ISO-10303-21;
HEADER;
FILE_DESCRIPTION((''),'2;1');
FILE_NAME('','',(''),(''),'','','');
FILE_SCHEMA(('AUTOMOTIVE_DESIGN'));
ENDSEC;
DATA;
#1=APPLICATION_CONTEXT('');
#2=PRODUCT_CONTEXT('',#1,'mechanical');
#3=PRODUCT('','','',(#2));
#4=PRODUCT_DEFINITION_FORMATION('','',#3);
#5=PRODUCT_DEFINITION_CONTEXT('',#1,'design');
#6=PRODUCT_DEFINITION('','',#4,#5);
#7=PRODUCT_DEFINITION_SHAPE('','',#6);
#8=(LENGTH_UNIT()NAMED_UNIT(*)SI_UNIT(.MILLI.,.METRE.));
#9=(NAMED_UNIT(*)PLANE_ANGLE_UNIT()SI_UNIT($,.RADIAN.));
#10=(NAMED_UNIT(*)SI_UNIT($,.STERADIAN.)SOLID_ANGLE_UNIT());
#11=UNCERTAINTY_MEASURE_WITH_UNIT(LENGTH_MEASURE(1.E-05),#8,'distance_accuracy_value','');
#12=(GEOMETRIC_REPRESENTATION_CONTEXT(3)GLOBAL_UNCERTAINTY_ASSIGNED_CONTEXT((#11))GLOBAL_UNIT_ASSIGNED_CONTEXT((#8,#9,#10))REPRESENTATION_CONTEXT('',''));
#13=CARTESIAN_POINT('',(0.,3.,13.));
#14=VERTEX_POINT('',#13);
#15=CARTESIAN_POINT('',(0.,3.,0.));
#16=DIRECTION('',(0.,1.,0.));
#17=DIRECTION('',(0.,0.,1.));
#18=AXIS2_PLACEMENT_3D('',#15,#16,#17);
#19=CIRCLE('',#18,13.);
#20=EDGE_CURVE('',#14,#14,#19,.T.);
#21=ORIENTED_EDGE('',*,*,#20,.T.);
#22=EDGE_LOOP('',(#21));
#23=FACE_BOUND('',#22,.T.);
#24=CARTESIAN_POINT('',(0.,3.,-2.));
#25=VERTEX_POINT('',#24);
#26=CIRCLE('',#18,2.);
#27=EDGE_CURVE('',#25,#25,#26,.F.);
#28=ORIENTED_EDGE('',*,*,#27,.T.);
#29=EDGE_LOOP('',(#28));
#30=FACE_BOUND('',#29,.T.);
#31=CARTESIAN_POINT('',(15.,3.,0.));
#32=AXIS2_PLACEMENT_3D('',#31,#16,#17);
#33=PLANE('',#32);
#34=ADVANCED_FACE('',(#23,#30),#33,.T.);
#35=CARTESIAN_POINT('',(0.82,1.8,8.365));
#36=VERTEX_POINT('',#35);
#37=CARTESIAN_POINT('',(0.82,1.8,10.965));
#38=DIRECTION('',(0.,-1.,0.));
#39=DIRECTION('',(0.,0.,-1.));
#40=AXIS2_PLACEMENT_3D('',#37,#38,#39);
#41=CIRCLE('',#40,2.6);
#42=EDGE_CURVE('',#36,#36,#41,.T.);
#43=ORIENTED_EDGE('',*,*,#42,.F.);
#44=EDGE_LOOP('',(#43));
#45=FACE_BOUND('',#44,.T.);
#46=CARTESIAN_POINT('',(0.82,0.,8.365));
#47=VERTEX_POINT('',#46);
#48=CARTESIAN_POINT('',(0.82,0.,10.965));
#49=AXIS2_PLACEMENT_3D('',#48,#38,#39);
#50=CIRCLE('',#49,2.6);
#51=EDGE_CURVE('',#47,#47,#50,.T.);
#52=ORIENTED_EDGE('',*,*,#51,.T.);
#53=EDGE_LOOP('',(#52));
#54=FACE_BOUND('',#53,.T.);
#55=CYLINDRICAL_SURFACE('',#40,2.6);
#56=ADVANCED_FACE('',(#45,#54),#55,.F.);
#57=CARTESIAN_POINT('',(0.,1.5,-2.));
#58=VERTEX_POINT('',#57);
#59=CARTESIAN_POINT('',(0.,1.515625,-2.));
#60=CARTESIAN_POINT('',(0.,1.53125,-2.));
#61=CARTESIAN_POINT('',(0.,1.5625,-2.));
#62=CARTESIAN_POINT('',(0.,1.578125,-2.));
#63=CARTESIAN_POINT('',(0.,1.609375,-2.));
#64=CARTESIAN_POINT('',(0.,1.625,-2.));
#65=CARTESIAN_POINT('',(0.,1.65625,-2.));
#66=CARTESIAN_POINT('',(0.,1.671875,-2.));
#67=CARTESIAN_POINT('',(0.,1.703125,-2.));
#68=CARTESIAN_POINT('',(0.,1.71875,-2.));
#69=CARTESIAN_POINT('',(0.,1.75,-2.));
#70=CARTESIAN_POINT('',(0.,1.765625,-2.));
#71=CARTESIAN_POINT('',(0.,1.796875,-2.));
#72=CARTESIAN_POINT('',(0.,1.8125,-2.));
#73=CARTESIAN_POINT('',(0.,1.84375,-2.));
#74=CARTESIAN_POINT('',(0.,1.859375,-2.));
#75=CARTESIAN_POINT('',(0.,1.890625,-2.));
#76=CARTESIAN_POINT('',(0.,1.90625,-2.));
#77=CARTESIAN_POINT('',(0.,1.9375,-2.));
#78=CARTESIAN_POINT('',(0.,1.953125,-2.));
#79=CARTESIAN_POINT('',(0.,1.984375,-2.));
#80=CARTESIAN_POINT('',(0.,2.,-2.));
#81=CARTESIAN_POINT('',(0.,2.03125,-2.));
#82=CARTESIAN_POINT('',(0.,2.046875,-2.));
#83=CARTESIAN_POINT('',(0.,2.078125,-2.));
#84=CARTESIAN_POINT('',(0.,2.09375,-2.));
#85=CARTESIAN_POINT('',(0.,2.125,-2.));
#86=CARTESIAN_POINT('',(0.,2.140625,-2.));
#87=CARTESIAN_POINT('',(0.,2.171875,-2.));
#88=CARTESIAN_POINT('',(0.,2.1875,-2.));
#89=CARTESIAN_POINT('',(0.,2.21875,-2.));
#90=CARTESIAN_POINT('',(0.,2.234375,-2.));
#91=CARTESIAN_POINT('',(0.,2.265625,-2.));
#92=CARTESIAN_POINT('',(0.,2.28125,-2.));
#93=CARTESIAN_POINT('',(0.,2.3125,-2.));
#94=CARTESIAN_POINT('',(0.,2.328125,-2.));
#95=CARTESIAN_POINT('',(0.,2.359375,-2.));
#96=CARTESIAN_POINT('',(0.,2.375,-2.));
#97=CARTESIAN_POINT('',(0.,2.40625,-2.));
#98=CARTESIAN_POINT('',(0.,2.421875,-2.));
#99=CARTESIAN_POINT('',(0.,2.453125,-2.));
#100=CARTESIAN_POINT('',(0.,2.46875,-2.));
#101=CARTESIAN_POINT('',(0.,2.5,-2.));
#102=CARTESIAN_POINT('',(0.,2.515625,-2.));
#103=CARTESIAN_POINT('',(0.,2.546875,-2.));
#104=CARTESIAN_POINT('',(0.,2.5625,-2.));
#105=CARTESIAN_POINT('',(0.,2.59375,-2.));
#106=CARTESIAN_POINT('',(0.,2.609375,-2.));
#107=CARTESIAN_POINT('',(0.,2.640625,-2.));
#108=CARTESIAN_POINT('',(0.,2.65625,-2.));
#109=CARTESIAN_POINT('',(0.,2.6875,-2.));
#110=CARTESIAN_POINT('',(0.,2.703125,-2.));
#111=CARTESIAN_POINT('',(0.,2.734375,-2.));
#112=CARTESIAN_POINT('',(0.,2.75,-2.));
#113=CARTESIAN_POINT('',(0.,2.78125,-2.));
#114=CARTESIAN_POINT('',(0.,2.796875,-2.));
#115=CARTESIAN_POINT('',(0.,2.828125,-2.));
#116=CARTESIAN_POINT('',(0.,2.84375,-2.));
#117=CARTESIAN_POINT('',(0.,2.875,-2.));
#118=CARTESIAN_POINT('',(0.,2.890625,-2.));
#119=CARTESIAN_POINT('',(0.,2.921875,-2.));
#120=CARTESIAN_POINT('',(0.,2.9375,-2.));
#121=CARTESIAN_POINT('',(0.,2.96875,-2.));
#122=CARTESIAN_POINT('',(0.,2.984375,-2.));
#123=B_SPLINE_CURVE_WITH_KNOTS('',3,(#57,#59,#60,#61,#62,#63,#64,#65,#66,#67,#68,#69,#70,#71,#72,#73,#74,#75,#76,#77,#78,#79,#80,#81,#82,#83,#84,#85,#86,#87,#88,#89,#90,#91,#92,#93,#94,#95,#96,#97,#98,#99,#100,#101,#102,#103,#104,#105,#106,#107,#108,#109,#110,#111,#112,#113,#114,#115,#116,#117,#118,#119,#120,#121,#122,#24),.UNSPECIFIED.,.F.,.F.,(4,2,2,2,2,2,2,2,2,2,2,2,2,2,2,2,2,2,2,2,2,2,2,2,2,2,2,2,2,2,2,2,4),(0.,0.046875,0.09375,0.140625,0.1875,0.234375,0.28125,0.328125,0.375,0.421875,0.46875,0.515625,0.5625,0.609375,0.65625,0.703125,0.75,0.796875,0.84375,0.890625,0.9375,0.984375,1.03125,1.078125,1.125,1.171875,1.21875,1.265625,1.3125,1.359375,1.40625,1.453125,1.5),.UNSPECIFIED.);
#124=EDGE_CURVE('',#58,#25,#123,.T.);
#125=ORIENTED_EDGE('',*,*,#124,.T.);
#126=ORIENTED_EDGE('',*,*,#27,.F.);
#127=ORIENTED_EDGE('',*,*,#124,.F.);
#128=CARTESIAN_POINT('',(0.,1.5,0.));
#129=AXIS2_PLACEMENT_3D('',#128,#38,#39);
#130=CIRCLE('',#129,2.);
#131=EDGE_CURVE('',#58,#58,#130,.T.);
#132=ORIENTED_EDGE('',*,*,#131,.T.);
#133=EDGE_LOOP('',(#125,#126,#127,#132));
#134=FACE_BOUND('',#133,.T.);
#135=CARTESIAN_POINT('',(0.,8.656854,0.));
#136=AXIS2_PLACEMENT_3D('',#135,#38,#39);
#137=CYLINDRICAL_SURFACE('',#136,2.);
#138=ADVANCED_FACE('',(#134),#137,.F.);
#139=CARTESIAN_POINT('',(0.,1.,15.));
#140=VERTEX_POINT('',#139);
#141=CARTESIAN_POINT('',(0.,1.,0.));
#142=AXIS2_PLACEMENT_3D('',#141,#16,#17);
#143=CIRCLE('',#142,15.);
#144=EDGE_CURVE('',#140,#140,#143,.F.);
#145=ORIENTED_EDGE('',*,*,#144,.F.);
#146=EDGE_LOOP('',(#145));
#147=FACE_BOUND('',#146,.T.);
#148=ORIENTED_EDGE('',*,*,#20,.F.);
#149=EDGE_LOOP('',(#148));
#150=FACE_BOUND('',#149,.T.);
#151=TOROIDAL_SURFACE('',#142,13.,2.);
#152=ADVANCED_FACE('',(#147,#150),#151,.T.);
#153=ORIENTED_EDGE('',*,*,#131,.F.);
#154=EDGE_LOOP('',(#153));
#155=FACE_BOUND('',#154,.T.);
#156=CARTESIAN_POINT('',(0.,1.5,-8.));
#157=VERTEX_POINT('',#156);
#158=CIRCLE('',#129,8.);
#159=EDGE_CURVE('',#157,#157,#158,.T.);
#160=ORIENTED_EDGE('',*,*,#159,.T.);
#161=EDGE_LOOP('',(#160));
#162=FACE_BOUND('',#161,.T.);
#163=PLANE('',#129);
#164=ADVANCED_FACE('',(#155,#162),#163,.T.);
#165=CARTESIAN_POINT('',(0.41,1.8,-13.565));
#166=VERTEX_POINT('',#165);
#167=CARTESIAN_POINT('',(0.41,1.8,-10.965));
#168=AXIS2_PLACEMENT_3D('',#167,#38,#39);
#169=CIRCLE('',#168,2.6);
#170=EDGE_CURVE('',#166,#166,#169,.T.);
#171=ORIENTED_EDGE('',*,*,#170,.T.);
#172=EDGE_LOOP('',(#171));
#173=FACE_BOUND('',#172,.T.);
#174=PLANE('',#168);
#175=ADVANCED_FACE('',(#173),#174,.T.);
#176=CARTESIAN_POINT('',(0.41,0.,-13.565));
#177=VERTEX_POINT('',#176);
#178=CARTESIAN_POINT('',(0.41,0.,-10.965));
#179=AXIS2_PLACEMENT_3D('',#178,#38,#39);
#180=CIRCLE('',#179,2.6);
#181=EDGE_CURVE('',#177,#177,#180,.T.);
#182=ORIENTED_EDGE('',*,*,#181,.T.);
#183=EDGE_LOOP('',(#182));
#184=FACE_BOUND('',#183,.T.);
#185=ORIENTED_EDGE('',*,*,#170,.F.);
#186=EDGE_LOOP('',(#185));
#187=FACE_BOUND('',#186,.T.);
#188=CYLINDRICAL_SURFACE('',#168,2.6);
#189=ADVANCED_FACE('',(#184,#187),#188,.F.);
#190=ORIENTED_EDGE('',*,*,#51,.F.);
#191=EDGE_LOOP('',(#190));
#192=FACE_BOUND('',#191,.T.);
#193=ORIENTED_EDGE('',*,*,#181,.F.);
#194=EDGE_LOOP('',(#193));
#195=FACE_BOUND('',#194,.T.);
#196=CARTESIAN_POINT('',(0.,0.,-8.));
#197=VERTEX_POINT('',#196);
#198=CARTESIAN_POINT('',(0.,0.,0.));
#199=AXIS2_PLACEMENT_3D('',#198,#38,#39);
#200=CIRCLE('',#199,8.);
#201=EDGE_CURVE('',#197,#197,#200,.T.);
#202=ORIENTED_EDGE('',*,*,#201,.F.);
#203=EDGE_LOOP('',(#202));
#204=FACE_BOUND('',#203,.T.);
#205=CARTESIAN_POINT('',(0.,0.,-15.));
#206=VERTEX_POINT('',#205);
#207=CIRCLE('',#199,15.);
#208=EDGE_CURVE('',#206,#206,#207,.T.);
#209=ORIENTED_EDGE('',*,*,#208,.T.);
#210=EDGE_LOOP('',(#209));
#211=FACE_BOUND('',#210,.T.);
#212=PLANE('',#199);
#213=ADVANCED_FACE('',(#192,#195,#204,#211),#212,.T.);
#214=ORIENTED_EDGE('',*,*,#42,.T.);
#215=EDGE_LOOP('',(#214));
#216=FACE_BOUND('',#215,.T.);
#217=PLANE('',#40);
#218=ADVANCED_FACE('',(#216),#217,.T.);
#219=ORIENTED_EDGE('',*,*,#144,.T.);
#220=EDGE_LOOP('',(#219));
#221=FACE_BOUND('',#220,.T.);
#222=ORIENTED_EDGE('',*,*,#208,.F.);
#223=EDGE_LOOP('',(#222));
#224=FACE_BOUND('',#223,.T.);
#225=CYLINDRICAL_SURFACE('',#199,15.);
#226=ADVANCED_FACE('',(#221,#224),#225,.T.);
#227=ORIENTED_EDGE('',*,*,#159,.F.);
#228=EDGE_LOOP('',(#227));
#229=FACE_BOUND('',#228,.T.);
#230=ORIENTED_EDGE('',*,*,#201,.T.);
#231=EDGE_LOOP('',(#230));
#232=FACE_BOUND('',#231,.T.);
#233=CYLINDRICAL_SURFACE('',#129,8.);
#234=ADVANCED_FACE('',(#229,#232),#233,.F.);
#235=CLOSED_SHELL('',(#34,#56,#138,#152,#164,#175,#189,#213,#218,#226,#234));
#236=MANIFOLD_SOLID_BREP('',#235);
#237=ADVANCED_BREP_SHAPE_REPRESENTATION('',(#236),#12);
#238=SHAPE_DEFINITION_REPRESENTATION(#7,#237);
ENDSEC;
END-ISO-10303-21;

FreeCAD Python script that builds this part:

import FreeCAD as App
import Part
import Sketcher
Q = App.Units.Quantity


def edges_at(feature, points):
    """Names of the edges that pass closest to the given points."""
    edges = feature.Shape.Edges
    near = lambda p: min(range(len(edges)), key=lambda i: edges[i].distToShape(Part.Vertex(*p))[0])
    return sorted({f"Edge{near(p) + 1}" for p in points})

doc = App.newDocument("Part")
body = doc.addObject("PartDesign::Body", "Body")

# Sketch on XY plane
sketch1 = doc.addObject("Sketcher::SketchObject", "Sketch")
body.addObject(sketch1)
sketch1.AttachmentSupport = (doc.XY_Plane, [""])
sketch1.MapMode = "FlatFace"
sketch1.addGeometry([
    Part.LineSegment(App.Vector(0, 3, 0), App.Vector(0, 0, 0)),
    Part.LineSegment(App.Vector(0, 0, 0), App.Vector(15, 0, 0)),
    Part.LineSegment(App.Vector(15, 0, 0), App.Vector(15, 3, 0)),
    Part.LineSegment(App.Vector(15, 3, 0), App.Vector(0, 3, 0)),
], False)
sketch1.addConstraint([
    Sketcher.Constraint("Coincident", 0, 2, 1, 1),
    Sketcher.Constraint("Coincident", 1, 2, 2, 1),
    Sketcher.Constraint("Coincident", 2, 2, 3, 1),
    Sketcher.Constraint("Coincident", 3, 2, 0, 1),
    Sketcher.Constraint("Vertical", 0),
    Sketcher.Constraint("Horizontal", 1),
    Sketcher.Constraint("Vertical", 2),
    Sketcher.Constraint("Horizontal", 3),
    Sketcher.Constraint("Coincident", 0, 2, -1, 1),
    Sketcher.Constraint("DistanceX", 1, 1, 1, 2, Q("15 mm")),
    Sketcher.Constraint("DistanceY", 0, 2, 0, 1, Q("3 mm")),
])
revolution = doc.addObject("PartDesign::Revolution", "Revolution")
body.addObject(revolution)
revolution.Profile = sketch1
revolution.ReferenceAxis = (sketch1, ["V_Axis"])
revolution.Angle = 360

# Sketch on XZ plane
sketch2 = doc.addObject("Sketcher::SketchObject", "Sketch001")
body.addObject(sketch2)
sketch2.AttachmentSupport = (doc.XZ_Plane, [""])
sketch2.MapMode = "FlatFace"
sketch2.addGeometry(Part.Circle(App.Vector(0, 0, 0), App.Vector(0, 0, 1), 8), False)
sketch2.addConstraint([
    Sketcher.Constraint("Coincident", 0, 3, -1, 1),
    Sketcher.Constraint("Diameter", 0, Q("16 mm")),
])
pocket1 = doc.addObject("PartDesign::Pocket", "Pocket")
body.addObject(pocket1)
pocket1.Profile = sketch2
pocket1.Length = 1.5

# Sketch on XZ plane
sketch3 = doc.addObject("Sketcher::SketchObject", "Sketch002")
body.addObject(sketch3)
sketch3.AttachmentSupport = (doc.XZ_Plane, [""])
sketch3.MapMode = "FlatFace"
sketch3.AttachmentOffset = App.Placement(App.Vector(0, 0, -1.5), App.Rotation())
sketch3.addGeometry(Part.Circle(App.Vector(0, 0, 0), App.Vector(0, 0, 1), 2), False)
sketch3.addConstraint([
    Sketcher.Constraint("Coincident", 0, 3, -1, 1),
    Sketcher.Constraint("Diameter", 0, Q("4 mm")),
])
pocket2 = doc.addObject("PartDesign::Pocket", "Pocket001")
body.addObject(pocket2)
pocket2.Profile = sketch3
pocket2.Length = 1.5

# Sketch on XZ plane
sketch4 = doc.addObject("Sketcher::SketchObject", "Sketch003")
body.addObject(sketch4)
sketch4.AttachmentSupport = (doc.XZ_Plane, [""])
sketch4.MapMode = "FlatFace"
sketch4.addGeometry([
    Part.Circle(App.Vector(0.4, -11, 0), App.Vector(0, 0, 1), 2.6),
    Part.Circle(App.Vector(0.8, 11, 0), App.Vector(0, 0, 1), 2.6),
], False)
sketch4.addConstraint([
    Sketcher.Constraint("Equal", 0, 1),
    Sketcher.Constraint("Diameter", 0, Q("5.2 mm")),
    Sketcher.Constraint("DistanceX", -1, 1, 0, 3, Q("0.41 mm")),
    Sketcher.Constraint("DistanceX", -1, 1, 1, 3, Q("0.82 mm")),
    Sketcher.Constraint("DistanceY", 0, 3, 1, 3, Q("21.93 mm")),
    Sketcher.Constraint("DistanceY", 0, 3, -1, 1, Q("10.965 mm")),
])
pocket3 = doc.addObject("PartDesign::Pocket", "Pocket002")
body.addObject(pocket3)
pocket3.Profile = sketch4
pocket3.Length = 1.8
doc.recompute()

fillet = doc.addObject("PartDesign::Fillet", "Fillet")
body.addObject(fillet)
fillet.Base = (pocket3, edges_at(pocket3, [(0, 3, 15)]))
fillet.Radius = 2

doc.recompute()
